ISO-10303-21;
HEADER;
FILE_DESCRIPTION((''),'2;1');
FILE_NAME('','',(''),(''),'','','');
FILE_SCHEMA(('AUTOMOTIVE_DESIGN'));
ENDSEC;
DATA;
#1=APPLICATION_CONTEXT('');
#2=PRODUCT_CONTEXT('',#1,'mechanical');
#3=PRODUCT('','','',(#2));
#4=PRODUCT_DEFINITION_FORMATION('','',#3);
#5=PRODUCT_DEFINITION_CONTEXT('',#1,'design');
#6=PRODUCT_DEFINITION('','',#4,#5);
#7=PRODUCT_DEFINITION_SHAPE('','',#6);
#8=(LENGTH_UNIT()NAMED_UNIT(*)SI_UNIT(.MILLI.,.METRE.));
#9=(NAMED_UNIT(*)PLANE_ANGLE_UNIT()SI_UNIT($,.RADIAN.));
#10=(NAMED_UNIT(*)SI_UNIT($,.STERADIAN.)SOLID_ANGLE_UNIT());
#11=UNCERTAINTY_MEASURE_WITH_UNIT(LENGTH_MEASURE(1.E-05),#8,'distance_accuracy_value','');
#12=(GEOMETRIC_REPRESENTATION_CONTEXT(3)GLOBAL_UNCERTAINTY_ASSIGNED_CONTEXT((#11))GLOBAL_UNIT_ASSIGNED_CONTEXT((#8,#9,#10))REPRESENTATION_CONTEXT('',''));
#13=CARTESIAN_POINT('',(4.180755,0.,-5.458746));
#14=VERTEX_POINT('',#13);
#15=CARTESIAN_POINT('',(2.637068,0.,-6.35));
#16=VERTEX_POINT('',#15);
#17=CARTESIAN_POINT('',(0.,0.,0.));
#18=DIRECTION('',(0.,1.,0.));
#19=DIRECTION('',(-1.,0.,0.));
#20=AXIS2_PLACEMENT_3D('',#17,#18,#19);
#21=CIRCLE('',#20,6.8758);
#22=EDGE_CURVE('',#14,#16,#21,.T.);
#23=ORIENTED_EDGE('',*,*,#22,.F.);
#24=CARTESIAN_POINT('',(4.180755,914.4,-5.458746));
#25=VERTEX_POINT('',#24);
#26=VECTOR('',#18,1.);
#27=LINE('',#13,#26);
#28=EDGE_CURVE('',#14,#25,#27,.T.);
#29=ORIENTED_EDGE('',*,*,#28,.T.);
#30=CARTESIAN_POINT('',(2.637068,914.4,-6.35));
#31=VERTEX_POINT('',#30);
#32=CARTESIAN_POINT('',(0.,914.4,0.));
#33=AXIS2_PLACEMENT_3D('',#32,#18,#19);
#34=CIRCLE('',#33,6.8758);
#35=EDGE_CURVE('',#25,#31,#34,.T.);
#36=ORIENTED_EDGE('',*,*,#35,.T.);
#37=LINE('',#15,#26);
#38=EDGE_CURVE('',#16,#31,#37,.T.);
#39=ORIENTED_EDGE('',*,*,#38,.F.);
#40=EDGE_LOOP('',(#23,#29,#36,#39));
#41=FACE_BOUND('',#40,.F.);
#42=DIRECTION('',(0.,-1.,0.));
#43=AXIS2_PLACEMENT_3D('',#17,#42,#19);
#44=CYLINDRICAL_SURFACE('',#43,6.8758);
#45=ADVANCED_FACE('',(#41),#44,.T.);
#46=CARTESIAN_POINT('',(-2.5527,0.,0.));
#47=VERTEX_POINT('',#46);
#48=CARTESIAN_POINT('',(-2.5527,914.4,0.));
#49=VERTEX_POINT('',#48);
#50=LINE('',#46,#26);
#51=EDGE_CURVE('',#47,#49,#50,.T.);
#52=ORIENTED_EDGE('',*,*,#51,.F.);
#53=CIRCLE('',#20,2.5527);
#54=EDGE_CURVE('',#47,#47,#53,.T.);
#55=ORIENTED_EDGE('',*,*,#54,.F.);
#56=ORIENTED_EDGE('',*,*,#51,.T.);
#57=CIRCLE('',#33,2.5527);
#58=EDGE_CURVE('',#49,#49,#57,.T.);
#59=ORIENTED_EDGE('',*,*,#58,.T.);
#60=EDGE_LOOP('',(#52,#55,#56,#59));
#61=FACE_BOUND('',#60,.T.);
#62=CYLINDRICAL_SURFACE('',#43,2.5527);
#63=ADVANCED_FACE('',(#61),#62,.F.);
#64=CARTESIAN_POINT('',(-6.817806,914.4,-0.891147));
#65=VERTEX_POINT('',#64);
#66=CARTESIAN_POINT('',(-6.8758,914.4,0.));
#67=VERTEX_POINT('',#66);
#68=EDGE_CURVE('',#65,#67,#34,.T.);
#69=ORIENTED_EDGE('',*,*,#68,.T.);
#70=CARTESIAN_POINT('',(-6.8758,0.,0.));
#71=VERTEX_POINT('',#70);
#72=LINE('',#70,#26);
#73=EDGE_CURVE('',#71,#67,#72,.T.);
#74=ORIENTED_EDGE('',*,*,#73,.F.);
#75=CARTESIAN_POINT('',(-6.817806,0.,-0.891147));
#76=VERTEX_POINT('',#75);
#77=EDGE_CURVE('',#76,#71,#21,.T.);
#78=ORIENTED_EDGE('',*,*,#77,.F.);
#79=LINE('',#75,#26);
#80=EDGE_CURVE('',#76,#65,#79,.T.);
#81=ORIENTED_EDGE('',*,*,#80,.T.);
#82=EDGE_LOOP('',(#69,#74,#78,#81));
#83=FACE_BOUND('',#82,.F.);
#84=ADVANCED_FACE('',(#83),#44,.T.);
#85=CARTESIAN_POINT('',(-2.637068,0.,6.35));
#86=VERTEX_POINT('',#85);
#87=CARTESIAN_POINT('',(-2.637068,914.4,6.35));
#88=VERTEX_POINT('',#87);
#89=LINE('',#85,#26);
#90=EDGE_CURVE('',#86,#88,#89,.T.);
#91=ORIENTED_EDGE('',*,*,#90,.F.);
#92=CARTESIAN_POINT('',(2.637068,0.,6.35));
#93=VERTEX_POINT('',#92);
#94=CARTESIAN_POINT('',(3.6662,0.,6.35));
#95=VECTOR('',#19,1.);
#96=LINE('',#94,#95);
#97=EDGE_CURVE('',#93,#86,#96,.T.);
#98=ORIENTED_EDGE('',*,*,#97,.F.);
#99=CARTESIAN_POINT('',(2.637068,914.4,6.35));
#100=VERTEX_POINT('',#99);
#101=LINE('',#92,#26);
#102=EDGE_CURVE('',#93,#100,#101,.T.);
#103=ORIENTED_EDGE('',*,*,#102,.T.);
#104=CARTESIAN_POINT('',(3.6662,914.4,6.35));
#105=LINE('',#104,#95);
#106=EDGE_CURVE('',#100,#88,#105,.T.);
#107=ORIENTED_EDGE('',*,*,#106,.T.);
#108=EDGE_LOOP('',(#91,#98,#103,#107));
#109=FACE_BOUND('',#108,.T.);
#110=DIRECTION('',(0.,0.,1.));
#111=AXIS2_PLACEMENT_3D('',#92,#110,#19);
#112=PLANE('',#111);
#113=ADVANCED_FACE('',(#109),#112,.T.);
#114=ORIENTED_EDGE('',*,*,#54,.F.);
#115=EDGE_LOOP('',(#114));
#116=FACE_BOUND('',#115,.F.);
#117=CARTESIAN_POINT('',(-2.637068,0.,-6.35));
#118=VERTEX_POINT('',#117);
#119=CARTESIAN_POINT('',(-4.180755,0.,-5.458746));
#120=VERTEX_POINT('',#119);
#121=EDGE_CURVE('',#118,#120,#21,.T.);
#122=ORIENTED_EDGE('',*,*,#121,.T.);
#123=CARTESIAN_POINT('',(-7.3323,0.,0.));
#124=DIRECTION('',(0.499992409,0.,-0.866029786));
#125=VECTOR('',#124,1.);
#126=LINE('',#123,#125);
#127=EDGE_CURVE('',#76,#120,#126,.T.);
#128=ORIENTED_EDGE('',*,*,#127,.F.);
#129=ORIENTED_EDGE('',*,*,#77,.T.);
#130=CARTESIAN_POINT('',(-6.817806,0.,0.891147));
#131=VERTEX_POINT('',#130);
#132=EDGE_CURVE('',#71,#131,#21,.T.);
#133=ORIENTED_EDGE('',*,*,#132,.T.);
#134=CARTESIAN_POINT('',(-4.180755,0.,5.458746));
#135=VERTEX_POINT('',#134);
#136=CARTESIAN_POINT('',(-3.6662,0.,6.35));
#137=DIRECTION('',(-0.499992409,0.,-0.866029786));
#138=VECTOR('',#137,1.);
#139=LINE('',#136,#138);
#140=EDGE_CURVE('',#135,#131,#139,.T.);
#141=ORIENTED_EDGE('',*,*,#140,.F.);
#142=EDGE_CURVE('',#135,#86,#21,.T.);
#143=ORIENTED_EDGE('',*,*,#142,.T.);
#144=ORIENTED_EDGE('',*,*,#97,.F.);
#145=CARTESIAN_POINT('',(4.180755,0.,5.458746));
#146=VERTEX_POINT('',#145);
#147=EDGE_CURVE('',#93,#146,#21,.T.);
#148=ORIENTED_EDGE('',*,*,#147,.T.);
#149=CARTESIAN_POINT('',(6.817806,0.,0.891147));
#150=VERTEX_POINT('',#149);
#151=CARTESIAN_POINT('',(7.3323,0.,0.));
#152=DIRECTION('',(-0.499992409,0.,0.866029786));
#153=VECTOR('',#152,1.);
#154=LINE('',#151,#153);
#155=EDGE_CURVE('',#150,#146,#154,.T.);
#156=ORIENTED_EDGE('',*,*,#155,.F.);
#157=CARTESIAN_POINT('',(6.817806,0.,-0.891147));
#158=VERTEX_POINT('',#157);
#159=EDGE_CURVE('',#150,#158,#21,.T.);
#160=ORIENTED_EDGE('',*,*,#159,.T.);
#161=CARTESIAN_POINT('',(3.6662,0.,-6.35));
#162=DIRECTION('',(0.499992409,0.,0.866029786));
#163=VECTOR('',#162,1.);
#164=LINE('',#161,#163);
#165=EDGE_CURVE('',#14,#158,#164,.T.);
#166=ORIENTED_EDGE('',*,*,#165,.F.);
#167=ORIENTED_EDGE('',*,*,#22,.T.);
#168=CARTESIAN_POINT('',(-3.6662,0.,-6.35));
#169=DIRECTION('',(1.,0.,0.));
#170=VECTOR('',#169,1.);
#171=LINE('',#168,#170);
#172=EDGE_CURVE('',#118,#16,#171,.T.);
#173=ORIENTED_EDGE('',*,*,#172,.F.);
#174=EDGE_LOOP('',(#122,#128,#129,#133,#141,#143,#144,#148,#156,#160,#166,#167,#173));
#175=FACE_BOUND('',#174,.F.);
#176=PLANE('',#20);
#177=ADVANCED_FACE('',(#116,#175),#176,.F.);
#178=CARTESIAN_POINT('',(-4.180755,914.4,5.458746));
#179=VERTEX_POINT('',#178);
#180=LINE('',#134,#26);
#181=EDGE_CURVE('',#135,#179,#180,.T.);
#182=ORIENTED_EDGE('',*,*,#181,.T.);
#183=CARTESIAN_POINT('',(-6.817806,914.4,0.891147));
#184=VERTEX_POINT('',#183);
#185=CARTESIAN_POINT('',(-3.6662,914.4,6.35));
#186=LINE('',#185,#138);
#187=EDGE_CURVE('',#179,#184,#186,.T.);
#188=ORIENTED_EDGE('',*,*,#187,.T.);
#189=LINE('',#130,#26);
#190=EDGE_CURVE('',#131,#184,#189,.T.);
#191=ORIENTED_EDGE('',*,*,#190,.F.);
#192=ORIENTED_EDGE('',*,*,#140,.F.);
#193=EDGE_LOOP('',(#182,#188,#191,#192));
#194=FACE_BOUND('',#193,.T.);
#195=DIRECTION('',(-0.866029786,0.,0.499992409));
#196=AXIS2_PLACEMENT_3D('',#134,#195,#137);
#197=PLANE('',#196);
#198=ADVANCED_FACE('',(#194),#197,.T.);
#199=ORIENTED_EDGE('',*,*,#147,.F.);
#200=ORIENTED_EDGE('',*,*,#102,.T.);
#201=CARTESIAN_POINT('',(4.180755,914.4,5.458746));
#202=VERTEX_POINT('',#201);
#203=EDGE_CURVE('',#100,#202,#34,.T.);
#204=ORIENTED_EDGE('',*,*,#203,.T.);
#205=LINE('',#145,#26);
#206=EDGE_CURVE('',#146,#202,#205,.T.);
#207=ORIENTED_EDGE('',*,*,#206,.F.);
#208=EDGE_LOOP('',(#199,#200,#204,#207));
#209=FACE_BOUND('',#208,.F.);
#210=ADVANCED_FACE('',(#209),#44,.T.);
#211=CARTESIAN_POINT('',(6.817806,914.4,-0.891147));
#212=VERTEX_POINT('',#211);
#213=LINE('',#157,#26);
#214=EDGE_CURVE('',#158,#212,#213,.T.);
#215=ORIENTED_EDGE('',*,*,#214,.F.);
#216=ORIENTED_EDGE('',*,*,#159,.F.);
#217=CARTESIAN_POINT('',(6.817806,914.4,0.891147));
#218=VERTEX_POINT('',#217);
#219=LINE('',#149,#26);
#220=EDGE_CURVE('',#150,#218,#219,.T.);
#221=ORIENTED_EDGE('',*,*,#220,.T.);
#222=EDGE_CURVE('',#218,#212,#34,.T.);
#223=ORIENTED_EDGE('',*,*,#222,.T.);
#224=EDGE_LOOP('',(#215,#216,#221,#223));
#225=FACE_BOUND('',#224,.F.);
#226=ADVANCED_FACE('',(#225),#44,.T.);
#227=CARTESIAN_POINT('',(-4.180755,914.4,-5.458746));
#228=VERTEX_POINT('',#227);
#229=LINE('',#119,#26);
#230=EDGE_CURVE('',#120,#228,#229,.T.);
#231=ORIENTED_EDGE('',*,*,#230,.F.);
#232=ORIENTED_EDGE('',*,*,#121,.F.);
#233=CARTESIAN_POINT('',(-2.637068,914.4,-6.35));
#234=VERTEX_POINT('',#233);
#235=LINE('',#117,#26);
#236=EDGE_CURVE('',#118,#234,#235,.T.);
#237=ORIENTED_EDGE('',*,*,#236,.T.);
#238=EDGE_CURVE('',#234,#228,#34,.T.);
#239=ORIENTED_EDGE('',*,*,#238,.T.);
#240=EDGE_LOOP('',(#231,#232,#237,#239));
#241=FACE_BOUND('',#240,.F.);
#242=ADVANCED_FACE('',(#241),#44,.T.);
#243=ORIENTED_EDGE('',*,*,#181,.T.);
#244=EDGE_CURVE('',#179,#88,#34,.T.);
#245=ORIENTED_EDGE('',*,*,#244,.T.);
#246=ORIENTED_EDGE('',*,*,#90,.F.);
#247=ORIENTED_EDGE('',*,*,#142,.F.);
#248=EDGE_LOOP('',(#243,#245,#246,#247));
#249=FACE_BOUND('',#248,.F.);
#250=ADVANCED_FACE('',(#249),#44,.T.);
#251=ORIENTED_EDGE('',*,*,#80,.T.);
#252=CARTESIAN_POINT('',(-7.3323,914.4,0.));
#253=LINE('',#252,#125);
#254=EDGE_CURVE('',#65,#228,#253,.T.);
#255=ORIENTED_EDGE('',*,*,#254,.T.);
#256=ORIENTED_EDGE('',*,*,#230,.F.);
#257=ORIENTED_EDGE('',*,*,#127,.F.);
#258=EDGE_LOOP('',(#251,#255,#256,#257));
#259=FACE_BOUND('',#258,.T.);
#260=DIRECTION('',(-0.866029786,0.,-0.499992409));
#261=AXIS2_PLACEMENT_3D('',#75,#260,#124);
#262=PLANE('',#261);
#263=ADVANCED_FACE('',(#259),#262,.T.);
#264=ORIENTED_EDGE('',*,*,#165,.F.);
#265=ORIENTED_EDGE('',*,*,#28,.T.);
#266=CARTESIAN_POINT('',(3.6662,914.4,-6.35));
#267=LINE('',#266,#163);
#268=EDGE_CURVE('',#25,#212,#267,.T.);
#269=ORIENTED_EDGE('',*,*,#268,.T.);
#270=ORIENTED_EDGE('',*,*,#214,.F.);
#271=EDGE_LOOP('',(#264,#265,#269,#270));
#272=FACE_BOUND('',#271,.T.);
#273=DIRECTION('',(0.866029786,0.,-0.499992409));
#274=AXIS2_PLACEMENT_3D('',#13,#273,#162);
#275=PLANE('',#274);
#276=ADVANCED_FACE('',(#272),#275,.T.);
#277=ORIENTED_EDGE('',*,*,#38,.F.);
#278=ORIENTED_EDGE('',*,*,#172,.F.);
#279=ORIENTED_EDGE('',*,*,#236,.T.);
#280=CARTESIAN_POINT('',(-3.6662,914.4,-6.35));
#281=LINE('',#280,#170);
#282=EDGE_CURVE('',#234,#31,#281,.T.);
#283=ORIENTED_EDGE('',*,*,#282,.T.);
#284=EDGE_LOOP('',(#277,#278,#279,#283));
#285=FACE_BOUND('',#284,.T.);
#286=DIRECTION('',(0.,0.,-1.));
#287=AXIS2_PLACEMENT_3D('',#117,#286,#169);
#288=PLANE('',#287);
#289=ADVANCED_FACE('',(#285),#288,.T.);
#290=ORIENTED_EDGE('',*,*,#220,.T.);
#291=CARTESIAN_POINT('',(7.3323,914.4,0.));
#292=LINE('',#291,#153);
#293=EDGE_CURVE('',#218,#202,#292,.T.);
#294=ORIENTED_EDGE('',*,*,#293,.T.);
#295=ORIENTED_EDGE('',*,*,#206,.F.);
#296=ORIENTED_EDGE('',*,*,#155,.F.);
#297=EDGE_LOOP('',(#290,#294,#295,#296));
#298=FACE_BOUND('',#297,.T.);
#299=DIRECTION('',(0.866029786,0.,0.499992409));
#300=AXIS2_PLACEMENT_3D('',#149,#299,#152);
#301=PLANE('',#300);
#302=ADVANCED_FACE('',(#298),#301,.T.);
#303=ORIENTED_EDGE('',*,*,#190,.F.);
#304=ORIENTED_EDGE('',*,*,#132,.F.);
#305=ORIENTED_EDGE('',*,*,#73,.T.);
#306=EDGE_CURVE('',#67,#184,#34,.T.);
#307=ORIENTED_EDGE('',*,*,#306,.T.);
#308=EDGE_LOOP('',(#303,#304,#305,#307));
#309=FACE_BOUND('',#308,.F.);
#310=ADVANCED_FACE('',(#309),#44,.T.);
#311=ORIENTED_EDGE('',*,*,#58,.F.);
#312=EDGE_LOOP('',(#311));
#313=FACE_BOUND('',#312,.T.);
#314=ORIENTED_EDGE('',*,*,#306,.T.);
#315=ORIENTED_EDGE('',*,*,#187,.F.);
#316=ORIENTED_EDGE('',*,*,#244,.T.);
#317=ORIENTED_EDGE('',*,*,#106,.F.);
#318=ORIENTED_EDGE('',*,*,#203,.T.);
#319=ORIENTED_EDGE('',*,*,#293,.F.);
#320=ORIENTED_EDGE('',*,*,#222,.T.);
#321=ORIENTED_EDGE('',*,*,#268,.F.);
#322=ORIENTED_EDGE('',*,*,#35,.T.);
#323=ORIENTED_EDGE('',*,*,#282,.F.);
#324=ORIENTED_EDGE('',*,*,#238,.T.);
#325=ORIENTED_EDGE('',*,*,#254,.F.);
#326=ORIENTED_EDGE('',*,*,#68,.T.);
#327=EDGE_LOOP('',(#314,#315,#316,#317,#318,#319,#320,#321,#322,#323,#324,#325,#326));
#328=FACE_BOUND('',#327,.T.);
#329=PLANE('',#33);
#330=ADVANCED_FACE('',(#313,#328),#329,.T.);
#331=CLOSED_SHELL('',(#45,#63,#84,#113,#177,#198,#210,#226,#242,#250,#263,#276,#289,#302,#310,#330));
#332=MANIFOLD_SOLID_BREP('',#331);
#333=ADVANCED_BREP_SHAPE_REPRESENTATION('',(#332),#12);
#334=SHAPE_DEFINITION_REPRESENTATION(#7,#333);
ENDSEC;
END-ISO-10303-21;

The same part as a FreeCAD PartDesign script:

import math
import FreeCAD as App
import Part
import Sketcher

V = App.Vector
Q = App.Units.Quantity

doc = App.newDocument("Part")
params = doc.addObject("Spreadsheet::Sheet", "Params")
for row, (alias, value) in enumerate([
    ("sketch1_diameter", "0.201 in"),
    ("pad1_length", "36 in"),
], start=1):
    params.set(f"A{row}", alias)
    params.set(f"B{row}", "=" + value)
    params.setAlias(f"B{row}", alias)

body = doc.addObject("PartDesign::Body", "Body")

# Sketch on XZ plane
sketch1 = body.newObject("Sketcher::SketchObject", "Sketch")
sketch1.AttachmentSupport = (doc.getObject("XZ_Plane"), [""])
sketch1.MapMode = "FlatFace"
sketch1.addGeometry([
    Part.LineSegment(V(-4.180755, -5.458746, 0), V(-6.817806, -0.891147, 0)),  # 0
    Part.ArcOfCircle(Part.Circle(V(0, 0, 0), V(0, 0, 1), 6.8758), math.radians(172.553154), math.radians(187.446846)),  # 1
    Part.LineSegment(V(-6.817806, 0.891147, 0), V(-4.180755, 5.458746, 0)),  # 2
    Part.ArcOfCircle(Part.Circle(V(0, 0, 0), V(0, 0, 1), 6.8758), math.radians(112.552439), math.radians(127.44785)),  # 3
    Part.LineSegment(V(-2.637068, 6.35, 0), V(2.637068, 6.35, 0)),  # 4
    Part.ArcOfCircle(Part.Circle(V(0, 0, 0), V(0, 0, 1), 6.8758), math.radians(52.55215), math.radians(67.447561)),  # 5
    Part.LineSegment(V(4.180755, 5.458746, 0), V(6.817806, 0.891147, 0)),  # 6
    Part.ArcOfCircle(Part.Circle(V(0, 0, 0), V(0, 0, 1), 6.8758), math.radians(-7.446846), math.radians(7.446846)),  # 7
    Part.LineSegment(V(6.817806, -0.891147, 0), V(4.180755, -5.458746, 0)),  # 8
    Part.ArcOfCircle(Part.Circle(V(0, 0, 0), V(0, 0, 1), 6.8758), math.radians(-67.447561), math.radians(-52.55215)),  # 9
    Part.LineSegment(V(2.637068, -6.35, 0), V(-2.637068, -6.35, 0)),  # 10
    Part.ArcOfCircle(Part.Circle(V(0, 0, 0), V(0, 0, 1), 6.8758), math.radians(-127.44785), math.radians(-112.552439)),  # 11
    Part.Circle(V(0, 0, 0), V(0, 0, 1), 2.5527),  # 12
], False)
sketch1.addConstraint([
    Sketcher.Constraint("Coincident", 0, 2, 1, 2),
    Sketcher.Constraint("Coincident", 1, 1, 2, 1),
    Sketcher.Constraint("Coincident", 2, 2, 3, 2),
    Sketcher.Constraint("Coincident", 3, 1, 4, 1),
    Sketcher.Constraint("Coincident", 4, 2, 5, 2),
    Sketcher.Constraint("Coincident", 5, 1, 6, 1),
    Sketcher.Constraint("Coincident", 6, 2, 7, 2),
    Sketcher.Constraint("Coincident", 7, 1, 8, 1),
    Sketcher.Constraint("Coincident", 8, 2, 9, 2),
    Sketcher.Constraint("Coincident", 9, 1, 10, 1),
    Sketcher.Constraint("Coincident", 10, 2, 11, 2),
    Sketcher.Constraint("Coincident", 11, 1, 0, 1),
    Sketcher.Constraint("Horizontal", 4),
    Sketcher.Constraint("Horizontal", 10),
    Sketcher.Constraint("Coincident", 1, 3, -1, 1),
    Sketcher.Constraint("Coincident", 3, 3, -1, 1),
    Sketcher.Constraint("Coincident", 5, 3, -1, 1),
    Sketcher.Constraint("Coincident", 7, 3, -1, 1),
    Sketcher.Constraint("Coincident", 9, 3, -1, 1),
    Sketcher.Constraint("Coincident", 11, 3, -1, 1),
    Sketcher.Constraint("Coincident", 12, 3, -1, 1),
    Sketcher.Constraint("Equal", 1, 3),
    Sketcher.Constraint("Equal", 3, 5),
    Sketcher.Constraint("Equal", 5, 7),
    Sketcher.Constraint("Equal", 7, 9),
    Sketcher.Constraint("Equal", 9, 11),
    Sketcher.Constraint("Parallel", 0, 6),
    Sketcher.Constraint("Parallel", 2, 8),
    Sketcher.Constraint("Horizontal", 2, 2, 5, 1),
    Sketcher.Constraint("Horizontal", 1, 1, 6, 2),
    Sketcher.Constraint("Horizontal", 0, 2, 7, 1),
    Sketcher.Constraint("Vertical", 0, 2, 1, 1),
    Sketcher.Constraint("Vertical", 4, 2, 9, 1),
    Sketcher.Constraint("Diameter", 12, Q("0.201 in")),
    Sketcher.Constraint("Radius", 1, Q("0.2707 in")),
    Sketcher.Constraint("DistanceY", -1, 1, 3, 1, Q("0.25 in")),
    Sketcher.Constraint("DistanceY", 0, 2, 2, 2, Q("0.25 in")),
    Sketcher.Constraint("Angle", 0, Q("119.9995 deg")),
])
sketch1.setExpression("Constraints[33]", "Params.sketch1_diameter")
pad1 = body.newObject("PartDesign::Pad", "Pad")
pad1.Profile = sketch1
pad1.setExpression("Length", "Params.pad1_length")
pad1.Reversed = True

doc.recompute()
